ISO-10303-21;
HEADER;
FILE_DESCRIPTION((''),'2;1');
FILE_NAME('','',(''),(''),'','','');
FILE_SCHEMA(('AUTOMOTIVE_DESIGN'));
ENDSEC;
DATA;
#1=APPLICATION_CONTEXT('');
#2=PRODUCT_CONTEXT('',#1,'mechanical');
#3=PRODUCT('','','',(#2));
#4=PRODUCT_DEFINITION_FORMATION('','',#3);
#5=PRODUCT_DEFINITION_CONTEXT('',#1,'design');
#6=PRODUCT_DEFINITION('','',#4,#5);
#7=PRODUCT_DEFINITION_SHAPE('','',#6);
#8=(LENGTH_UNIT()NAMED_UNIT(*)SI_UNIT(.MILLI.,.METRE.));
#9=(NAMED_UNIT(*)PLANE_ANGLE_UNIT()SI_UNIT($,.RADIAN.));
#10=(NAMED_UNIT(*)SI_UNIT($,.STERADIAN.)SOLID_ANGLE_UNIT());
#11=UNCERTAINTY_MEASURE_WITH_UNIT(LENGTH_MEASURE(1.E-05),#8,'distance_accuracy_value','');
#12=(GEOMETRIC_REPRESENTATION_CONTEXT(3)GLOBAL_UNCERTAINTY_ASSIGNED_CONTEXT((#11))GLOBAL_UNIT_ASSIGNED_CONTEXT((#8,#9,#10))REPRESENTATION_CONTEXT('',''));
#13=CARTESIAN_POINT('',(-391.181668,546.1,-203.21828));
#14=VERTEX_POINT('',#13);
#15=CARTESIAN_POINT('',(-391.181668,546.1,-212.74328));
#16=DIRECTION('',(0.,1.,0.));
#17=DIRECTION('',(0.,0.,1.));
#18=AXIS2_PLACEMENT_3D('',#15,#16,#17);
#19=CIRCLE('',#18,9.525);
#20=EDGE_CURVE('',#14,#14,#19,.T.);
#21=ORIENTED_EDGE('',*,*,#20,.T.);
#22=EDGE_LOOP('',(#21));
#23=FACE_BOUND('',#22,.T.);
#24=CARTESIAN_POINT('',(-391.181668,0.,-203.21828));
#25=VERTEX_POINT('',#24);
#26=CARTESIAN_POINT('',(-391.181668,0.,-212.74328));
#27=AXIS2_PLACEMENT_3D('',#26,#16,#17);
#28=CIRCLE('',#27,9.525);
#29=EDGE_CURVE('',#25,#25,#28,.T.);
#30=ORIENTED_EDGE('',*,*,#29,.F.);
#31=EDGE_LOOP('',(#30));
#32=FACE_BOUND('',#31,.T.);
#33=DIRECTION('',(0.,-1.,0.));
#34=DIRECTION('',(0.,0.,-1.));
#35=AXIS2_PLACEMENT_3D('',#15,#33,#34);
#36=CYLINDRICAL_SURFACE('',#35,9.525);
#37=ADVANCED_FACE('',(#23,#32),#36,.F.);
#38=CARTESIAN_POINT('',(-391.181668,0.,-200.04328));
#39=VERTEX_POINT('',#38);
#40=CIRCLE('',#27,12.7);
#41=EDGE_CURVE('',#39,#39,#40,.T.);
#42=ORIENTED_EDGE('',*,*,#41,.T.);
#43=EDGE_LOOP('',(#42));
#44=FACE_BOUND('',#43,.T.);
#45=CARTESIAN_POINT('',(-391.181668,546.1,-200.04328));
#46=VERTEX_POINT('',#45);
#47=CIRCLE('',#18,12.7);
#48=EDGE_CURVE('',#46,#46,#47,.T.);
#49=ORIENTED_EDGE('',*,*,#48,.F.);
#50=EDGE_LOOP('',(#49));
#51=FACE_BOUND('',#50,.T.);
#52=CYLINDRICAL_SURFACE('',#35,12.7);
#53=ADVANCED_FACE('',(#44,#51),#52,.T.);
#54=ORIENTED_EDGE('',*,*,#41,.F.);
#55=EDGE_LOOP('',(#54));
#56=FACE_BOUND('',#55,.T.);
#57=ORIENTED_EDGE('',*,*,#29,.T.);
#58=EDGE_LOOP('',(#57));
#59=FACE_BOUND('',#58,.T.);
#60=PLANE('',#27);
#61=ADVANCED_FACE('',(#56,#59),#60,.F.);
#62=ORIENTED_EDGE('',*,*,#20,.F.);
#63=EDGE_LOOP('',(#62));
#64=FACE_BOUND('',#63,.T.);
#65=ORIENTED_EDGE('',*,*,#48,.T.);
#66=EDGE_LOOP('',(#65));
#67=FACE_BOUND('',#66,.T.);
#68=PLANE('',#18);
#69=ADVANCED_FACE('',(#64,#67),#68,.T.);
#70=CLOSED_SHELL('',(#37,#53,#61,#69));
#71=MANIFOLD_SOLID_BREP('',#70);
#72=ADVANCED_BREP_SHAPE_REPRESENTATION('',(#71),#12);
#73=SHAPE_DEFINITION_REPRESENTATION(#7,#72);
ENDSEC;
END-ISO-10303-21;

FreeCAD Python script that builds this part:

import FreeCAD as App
import Part
import Sketcher
from FreeCAD import Vector
Q = App.Units.Quantity

doc = App.newDocument("Part")
params = doc.addObject("Spreadsheet::Sheet", "Params")
for row, (alias, value) in enumerate([
    ("sketch1_diameter", "1 in"),
    ("sketch1_diameter2", "0.75 in"),
    ("pad1_length", "21.5 in"),
], start=1):
    params.set(f"A{row}", alias)
    params.set(f"B{row}", "=" + value)
    params.setAlias(f"B{row}", alias)

body = doc.addObject("PartDesign::Body", "Body")

# Sketch on XZ plane
sketch1 = doc.addObject("Sketcher::SketchObject", "Sketch")
body.addObject(sketch1)
sketch1.AttachmentSupport = (doc.XZ_Plane, [""])
sketch1.MapMode = "FlatFace"
sketch1.addGeometry([
    Part.Circle(Vector(-391, -213, 0), Vector(0, 0, 1), 13),
    Part.Circle(Vector(-391, -213, 0), Vector(0, 0, 1), 10),
], False)
sketch1.addConstraint([
    Sketcher.Constraint("Coincident", 1, 3, 0, 3),
    Sketcher.Constraint("Diameter", 0, Q("1 in")),
    Sketcher.Constraint("Diameter", 1, Q("0.75 in")),
    Sketcher.Constraint("DistanceX", 0, 3, -1, 1, Q("391.181668 mm")),
    Sketcher.Constraint("DistanceY", 0, 3, -1, 1, Q("212.74328 mm")),
])
sketch1.setExpression("Constraints[1]", "Params.sketch1_diameter")
sketch1.setExpression("Constraints[2]", "Params.sketch1_diameter2")
pad1 = doc.addObject("PartDesign::Pad", "Pad")
body.addObject(pad1)
pad1.Profile = sketch1
pad1.setExpression("Length", "Params.pad1_length")
pad1.Reversed = True

doc.recompute()
